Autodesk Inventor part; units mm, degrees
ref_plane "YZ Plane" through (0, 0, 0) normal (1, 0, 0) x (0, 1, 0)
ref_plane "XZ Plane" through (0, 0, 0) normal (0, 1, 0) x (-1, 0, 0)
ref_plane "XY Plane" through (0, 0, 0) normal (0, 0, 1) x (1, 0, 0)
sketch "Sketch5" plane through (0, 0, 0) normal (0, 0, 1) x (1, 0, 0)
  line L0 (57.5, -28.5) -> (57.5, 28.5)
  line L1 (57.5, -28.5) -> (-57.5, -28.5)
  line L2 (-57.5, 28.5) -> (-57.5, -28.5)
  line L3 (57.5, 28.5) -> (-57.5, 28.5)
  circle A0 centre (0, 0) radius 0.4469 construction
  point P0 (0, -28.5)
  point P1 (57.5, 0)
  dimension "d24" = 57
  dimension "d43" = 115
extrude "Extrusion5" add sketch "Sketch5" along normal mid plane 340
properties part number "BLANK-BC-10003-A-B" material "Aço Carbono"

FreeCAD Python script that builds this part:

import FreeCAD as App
import Part
import Sketcher
from FreeCAD import Vector

doc = App.newDocument("Part")
body = doc.addObject("PartDesign::Body", "Body")

# Sketch on XY plane
sketch1 = body.newObject("Sketcher::SketchObject", "Sketch")
sketch1.AttachmentSupport = (doc.getObject("XY_Plane"), [""])
sketch1.MapMode = "FlatFace"
sketch1.addGeometry([
    Part.LineSegment(Vector(-58, -28, 0), Vector(58, -28, 0)),
    Part.LineSegment(Vector(58, -28, 0), Vector(58, 28, 0)),
    Part.LineSegment(Vector(58, 28, 0), Vector(-58, 28, 0)),
    Part.LineSegment(Vector(-58, 28, 0), Vector(-58, -28, 0)),
], False)
sketch1.addConstraint([
    Sketcher.Constraint("Coincident", 0, 2, 1, 1),
    Sketcher.Constraint("Coincident", 1, 2, 2, 1),
    Sketcher.Constraint("Coincident", 2, 2, 3, 1),
    Sketcher.Constraint("Coincident", 3, 2, 0, 1),
    Sketcher.Constraint("Horizontal", 0),
    Sketcher.Constraint("Vertical", 1),
    Sketcher.Constraint("Horizontal", 2),
    Sketcher.Constraint("Vertical", 3),
    Sketcher.Constraint("Symmetric", 0, 2, 2, 2, -1, 1),
    Sketcher.Constraint("DistanceX", 0, 1, 0, 2, 115.0),
    Sketcher.Constraint("DistanceY", 1, 1, 1, 2, 57.0),
])
pad1 = body.newObject("PartDesign::Pad", "Pad")
pad1.Profile = sketch1
pad1.Length = 340
pad1.Midplane = True

doc.recompute()
